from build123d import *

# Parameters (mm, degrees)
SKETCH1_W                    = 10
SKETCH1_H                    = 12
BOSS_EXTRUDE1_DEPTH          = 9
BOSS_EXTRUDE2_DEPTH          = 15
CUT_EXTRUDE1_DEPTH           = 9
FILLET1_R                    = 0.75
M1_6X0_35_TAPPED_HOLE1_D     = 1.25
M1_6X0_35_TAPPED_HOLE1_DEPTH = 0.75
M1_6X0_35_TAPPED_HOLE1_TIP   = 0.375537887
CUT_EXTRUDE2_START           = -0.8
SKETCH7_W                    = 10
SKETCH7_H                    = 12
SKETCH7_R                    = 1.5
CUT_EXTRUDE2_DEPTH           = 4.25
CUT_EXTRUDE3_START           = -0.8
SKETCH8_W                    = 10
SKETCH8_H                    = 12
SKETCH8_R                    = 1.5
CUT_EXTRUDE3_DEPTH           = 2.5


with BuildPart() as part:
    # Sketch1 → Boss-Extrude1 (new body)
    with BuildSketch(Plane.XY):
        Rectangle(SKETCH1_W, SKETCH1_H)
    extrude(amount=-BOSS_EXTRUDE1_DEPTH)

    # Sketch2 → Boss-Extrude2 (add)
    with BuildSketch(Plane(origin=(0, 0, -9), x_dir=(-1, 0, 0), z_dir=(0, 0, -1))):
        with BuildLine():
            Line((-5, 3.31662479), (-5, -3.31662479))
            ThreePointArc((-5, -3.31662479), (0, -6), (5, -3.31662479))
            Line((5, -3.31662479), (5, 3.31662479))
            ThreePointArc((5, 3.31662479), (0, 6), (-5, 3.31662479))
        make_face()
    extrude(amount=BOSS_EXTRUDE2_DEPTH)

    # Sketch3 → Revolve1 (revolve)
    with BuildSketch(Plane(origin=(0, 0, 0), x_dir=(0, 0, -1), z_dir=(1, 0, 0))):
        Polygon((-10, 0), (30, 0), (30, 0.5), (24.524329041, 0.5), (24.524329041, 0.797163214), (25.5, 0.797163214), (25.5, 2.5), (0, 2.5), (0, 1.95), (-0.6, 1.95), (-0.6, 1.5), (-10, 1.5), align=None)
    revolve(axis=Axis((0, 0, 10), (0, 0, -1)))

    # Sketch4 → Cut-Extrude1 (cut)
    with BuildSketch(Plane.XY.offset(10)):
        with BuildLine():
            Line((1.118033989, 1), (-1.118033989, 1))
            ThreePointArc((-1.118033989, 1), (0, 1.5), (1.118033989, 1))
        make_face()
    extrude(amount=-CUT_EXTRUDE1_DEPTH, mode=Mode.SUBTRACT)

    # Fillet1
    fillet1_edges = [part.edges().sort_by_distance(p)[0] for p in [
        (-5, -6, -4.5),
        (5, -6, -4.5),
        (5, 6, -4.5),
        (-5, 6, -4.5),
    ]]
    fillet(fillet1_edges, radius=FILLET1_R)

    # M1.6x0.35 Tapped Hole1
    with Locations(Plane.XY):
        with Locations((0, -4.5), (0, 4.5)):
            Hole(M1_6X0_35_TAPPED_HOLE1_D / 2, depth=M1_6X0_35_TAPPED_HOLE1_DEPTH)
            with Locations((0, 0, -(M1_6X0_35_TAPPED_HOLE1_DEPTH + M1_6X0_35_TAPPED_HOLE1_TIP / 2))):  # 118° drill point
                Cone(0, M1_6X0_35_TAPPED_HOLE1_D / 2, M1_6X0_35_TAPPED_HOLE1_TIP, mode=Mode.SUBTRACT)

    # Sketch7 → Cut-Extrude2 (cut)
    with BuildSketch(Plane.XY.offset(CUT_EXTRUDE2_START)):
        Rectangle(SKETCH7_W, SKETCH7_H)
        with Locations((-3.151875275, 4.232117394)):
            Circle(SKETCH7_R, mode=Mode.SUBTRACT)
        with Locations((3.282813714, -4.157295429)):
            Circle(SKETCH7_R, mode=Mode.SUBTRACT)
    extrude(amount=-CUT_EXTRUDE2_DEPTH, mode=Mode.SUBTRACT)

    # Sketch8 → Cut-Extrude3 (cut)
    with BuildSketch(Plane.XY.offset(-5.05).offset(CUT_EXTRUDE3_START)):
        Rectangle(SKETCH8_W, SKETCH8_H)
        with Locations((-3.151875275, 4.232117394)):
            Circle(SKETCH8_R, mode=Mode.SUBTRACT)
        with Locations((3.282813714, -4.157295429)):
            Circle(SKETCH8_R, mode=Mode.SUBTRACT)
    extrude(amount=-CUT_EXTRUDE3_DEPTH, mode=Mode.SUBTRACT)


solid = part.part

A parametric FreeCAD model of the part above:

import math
import FreeCAD as App
import Part
import Sketcher
from FreeCAD import Vector
Q = App.Units.Quantity


def edges_at(feature, points):
    """Names of the edges that pass closest to the given points."""
    edges = feature.Shape.Edges
    near = lambda p: min(range(len(edges)), key=lambda i: edges[i].distToShape(Part.Vertex(*p))[0])
    return sorted({f"Edge{near(p) + 1}" for p in points})

doc = App.newDocument("Part")
body = doc.addObject("PartDesign::Body", "Body")

sketch1 = body.newObject("Sketcher::SketchObject", "Sketch")
sketch1.AttachmentSupport = (doc.getObject("XY_Plane"), [""])
sketch1.MapMode = "FlatFace"
sketch1.addGeometry(Part.LineSegment(Vector(-5, 6, 0), Vector(-5, -6, 0)), False)
sketch1.addGeometry(Part.LineSegment(Vector(-5, -6, 0), Vector(5, -6, 0)), False)
sketch1.addGeometry(Part.LineSegment(Vector(5, -6, 0), Vector(5, 6, 0)), False)
sketch1.addGeometry(Part.LineSegment(Vector(5, 6, 0), Vector(-5, 6, 0)), False)
sketch1.addConstraint(Sketcher.Constraint("Coincident", 0, 2, 1, 1))
sketch1.addConstraint(Sketcher.Constraint("Coincident", 1, 2, 2, 1))
sketch1.addConstraint(Sketcher.Constraint("Coincident", 2, 2, 3, 1))
sketch1.addConstraint(Sketcher.Constraint("Coincident", 3, 2, 0, 1))
sketch1.addConstraint(Sketcher.Constraint("Vertical", 0))
sketch1.addConstraint(Sketcher.Constraint("Horizontal", 1))
sketch1.addConstraint(Sketcher.Constraint("Vertical", 2))
sketch1.addConstraint(Sketcher.Constraint("Horizontal", 3))
sketch1.addConstraint(Sketcher.Constraint("Symmetric", 0, 2, 2, 2, -1, 1))
sketch1.addConstraint(Sketcher.Constraint("DistanceX", 1, 1, 1, 2, Q("10 mm")))
sketch1.addConstraint(Sketcher.Constraint("DistanceY", 0, 2, 0, 1, Q("12 mm")))
pad1 = body.newObject("PartDesign::Pad", "Pad")
pad1.Profile = sketch1
pad1.Length = 9
pad1.Reversed = True

sketch2 = body.newObject("Sketcher::SketchObject", "Sketch001")
sketch2.AttachmentSupport = (doc.getObject("XY_Plane"), [""])
sketch2.MapMode = "FlatFace"
sketch2.AttachmentOffset = App.Placement(Vector(0, 0, -9), App.Rotation())
sketch2.addGeometry(Part.LineSegment(Vector(5, 3.316625, 0), Vector(5, -3.316625, 0)), False)
sketch2.addGeometry(Part.ArcOfCircle(Part.Circle(Vector(0, 0, 0), Vector(0, 0, 1), 6), math.radians(-146.44269), math.radians(-33.55731)), False)
sketch2.addGeometry(Part.LineSegment(Vector(-5, -3.316625, 0), Vector(-5, 3.316625, 0)), False)
sketch2.addGeometry(Part.ArcOfCircle(Part.Circle(Vector(0, 0, 0), Vector(0, 0, 1), 6), math.radians(33.55731), math.radians(146.44269)), False)
sketch2.addConstraint(Sketcher.Constraint("Coincident", 0, 2, 1, 2))
sketch2.addConstraint(Sketcher.Constraint("Coincident", 1, 1, 2, 1))
sketch2.addConstraint(Sketcher.Constraint("Coincident", 2, 2, 3, 2))
sketch2.addConstraint(Sketcher.Constraint("Coincident", 3, 1, 0, 1))
sketch2.addConstraint(Sketcher.Constraint("Vertical", 0))
sketch2.addConstraint(Sketcher.Constraint("Vertical", 2))
sketch2.addConstraint(Sketcher.Constraint("Coincident", 1, 3, -1, 1))
sketch2.addConstraint(Sketcher.Constraint("Coincident", 3, 3, -1, 1))
sketch2.addConstraint(Sketcher.Constraint("Equal", 1, 3))
sketch2.addConstraint(Sketcher.Constraint("Horizontal", 0, 2, 1, 1))
sketch2.addConstraint(Sketcher.Constraint("Radius", 1, Q("6 mm")))
sketch2.addConstraint(Sketcher.Constraint("DistanceX", -1, 1, 0, 2, Q("5 mm")))
pad2 = body.newObject("PartDesign::Pad", "Pad001")
pad2.Profile = sketch2
pad2.Length = 15
pad2.Reversed = True

sketch3 = body.newObject("Sketcher::SketchObject", "Sketch002")
sketch3.AttachmentSupport = (doc.getObject("YZ_Plane"), [""])
sketch3.MapMode = "FlatFace"
sketch3.addGeometry(Part.LineSegment(Vector(0, 10, 0), Vector(0, -30, 0)), False)
sketch3.addGeometry(Part.LineSegment(Vector(0, -30, 0), Vector(0.5, -30, 0)), False)
sketch3.addGeometry(Part.LineSegment(Vector(0.5, -30, 0), Vector(0.5, -24.524329, 0)), False)
sketch3.addGeometry(Part.LineSegment(Vector(0.5, -24.524329, 0), Vector(0.797163, -24.524329, 0)), False)
sketch3.addGeometry(Part.LineSegment(Vector(0.797163, -24.524329, 0), Vector(0.797163, -25.5, 0)), False)
sketch3.addGeometry(Part.LineSegment(Vector(0.797163, -25.5, 0), Vector(2.5, -25.5, 0)), False)
sketch3.addGeometry(Part.LineSegment(Vector(2.5, -25.5, 0), Vector(2.5, 0, 0)), False)
sketch3.addGeometry(Part.LineSegment(Vector(2.5, 0, 0), Vector(1.95, 0, 0)), False)
sketch3.addGeometry(Part.LineSegment(Vector(1.95, 0, 0), Vector(1.95, 0.6, 0)), False)
sketch3.addGeometry(Part.LineSegment(Vector(1.95, 0.6, 0), Vector(1.5, 0.6, 0)), False)
sketch3.addGeometry(Part.LineSegment(Vector(1.5, 0.6, 0), Vector(1.5, 10, 0)), False)
sketch3.addGeometry(Part.LineSegment(Vector(1.5, 10, 0), Vector(0, 10, 0)), False)
sketch3.addConstraint(Sketcher.Constraint("Coincident", 0, 2, 1, 1))
sketch3.addConstraint(Sketcher.Constraint("Coincident", 1, 2, 2, 1))
sketch3.addConstraint(Sketcher.Constraint("Coincident", 2, 2, 3, 1))
sketch3.addConstraint(Sketcher.Constraint("Coincident", 3, 2, 4, 1))
sketch3.addConstraint(Sketcher.Constraint("Coincident", 4, 2, 5, 1))
sketch3.addConstraint(Sketcher.Constraint("Coincident", 5, 2, 6, 1))
sketch3.addConstraint(Sketcher.Constraint("Coincident", 6, 2, 7, 1))
sketch3.addConstraint(Sketcher.Constraint("Coincident", 7, 2, 8, 1))
sketch3.addConstraint(Sketcher.Constraint("Coincident", 8, 2, 9, 1))
sketch3.addConstraint(Sketcher.Constraint("Coincident", 9, 2, 10, 1))
sketch3.addConstraint(Sketcher.Constraint("Coincident", 10, 2, 11, 1))
sketch3.addConstraint(Sketcher.Constraint("Coincident", 11, 2, 0, 1))
sketch3.addConstraint(Sketcher.Constraint("Vertical", 0))
sketch3.addConstraint(Sketcher.Constraint("Horizontal", 1))
sketch3.addConstraint(Sketcher.Constraint("Vertical", 2))
sketch3.addConstraint(Sketcher.Constraint("Horizontal", 3))
sketch3.addConstraint(Sketcher.Constraint("Vertical", 4))
sketch3.addConstraint(Sketcher.Constraint("Horizontal", 5))
sketch3.addConstraint(Sketcher.Constraint("Vertical", 6))
sketch3.addConstraint(Sketcher.Constraint("Horizontal", 7))
sketch3.addConstraint(Sketcher.Constraint("Vertical", 8))
sketch3.addConstraint(Sketcher.Constraint("Horizontal", 9))
sketch3.addConstraint(Sketcher.Constraint("Vertical", 10))
sketch3.addConstraint(Sketcher.Constraint("Horizontal", 11))
sketch3.addConstraint(Sketcher.Constraint("PointOnObject", 0, 2, -2))
sketch3.addConstraint(Sketcher.Constraint("PointOnObject", 6, 2, -1))
sketch3.addConstraint(Sketcher.Constraint("DistanceY", 0, 2, 0, 1, Q("40 mm")))
sketch3.addConstraint(Sketcher.Constraint("DistanceX", 1, 1, 1, 2, Q("0.5 mm")))
sketch3.addConstraint(Sketcher.Constraint("DistanceX", 11, 2, 11, 1, Q("1.5 mm")))
sketch3.addConstraint(Sketcher.Constraint("DistanceY", 6, 1, 6, 2, Q("25.5 mm")))
sketch3.addConstraint(Sketcher.Constraint("DistanceY", 8, 1, 8, 2, Q("0.6 mm")))
sketch3.addConstraint(Sketcher.Constraint("DistanceY", 10, 1, 10, 2, Q("9.4 mm")))
sketch3.addConstraint(Sketcher.Constraint("DistanceX", 2, 2, 5, 2, Q("2 mm")))
sketch3.addConstraint(Sketcher.Constraint("DistanceX", 7, 2, 7, 1, Q("0.55 mm")))
sketch3.addConstraint(Sketcher.Constraint("DistanceY", 2, 1, 2, 2, Q("5.475671 mm")))
sketch3.addConstraint(Sketcher.Constraint("DistanceX", 3, 1, 3, 2, Q("0.297163 mm")))
revolution = body.newObject("PartDesign::Revolution", "Revolution")
revolution.Profile = sketch3
revolution.ReferenceAxis = (sketch3, ["V_Axis"])
revolution.Angle = 360

sketch4 = body.newObject("Sketcher::SketchObject", "Sketch003")
sketch4.AttachmentSupport = (doc.getObject("XY_Plane"), [""])
sketch4.MapMode = "FlatFace"
sketch4.AttachmentOffset = App.Placement(Vector(0, 0, 10), App.Rotation())
sketch4.addGeometry(Part.LineSegment(Vector(-1.118034, 1, 0), Vector(1.118034, 1, 0)), False)
sketch4.addGeometry(Part.ArcOfCircle(Part.Circle(Vector(0, 0, 0), Vector(0, 0, 1), 1.5), math.radians(41.810315), math.radians(138.189685)), False)
sketch4.addConstraint(Sketcher.Constraint("Coincident", 0, 1, 1, 2))
sketch4.addConstraint(Sketcher.Constraint("Coincident", 1, 1, 0, 2))
sketch4.addConstraint(Sketcher.Constraint("Horizontal", 0))
sketch4.addConstraint(Sketcher.Constraint("Coincident", 1, 3, -1, 1))
sketch4.addConstraint(Sketcher.Constraint("Radius", 1, Q("1.5 mm")))
sketch4.addConstraint(Sketcher.Constraint("DistanceY", -1, 1, 0, 1, Q("1 mm")))
pocket1 = body.newObject("PartDesign::Pocket", "Pocket")
pocket1.Profile = sketch4
pocket1.Length = 9
doc.recompute()

fillet = body.newObject("PartDesign::Fillet", "Fillet")
fillet.Base = (pocket1, edges_at(pocket1, [
    (-5, -6, -4.5),
    (5, -6, -4.5),
    (5, 6, -4.5),
    (-5, 6, -4.5),
]))
fillet.Radius = 0.75

sketch5 = body.newObject("Sketcher::SketchObject", "Sketch004")
sketch5.AttachmentSupport = (doc.getObject("XY_Plane"), [""])
sketch5.MapMode = "FlatFace"
sketch5.addGeometry(Part.Circle(Vector(0, -4.5, 0), Vector(0, 0, 1), 0.625), False)
sketch5.addGeometry(Part.Circle(Vector(0, 4.5, 0), Vector(0, 0, 1), 0.625), False)
sketch5.addConstraint(Sketcher.Constraint("Equal", 0, 1))
sketch5.addConstraint(Sketcher.Constraint("Symmetric", 0, 3, 1, 3, -1, 1))
sketch5.addConstraint(Sketcher.Constraint("PointOnObject", 0, 3, -2))
sketch5.addConstraint(Sketcher.Constraint("Diameter", 0, Q("1.25 mm")))
sketch5.addConstraint(Sketcher.Constraint("DistanceY", 0, 3, 1, 3, Q("9 mm")))
doc.recompute()
hole = body.newObject("PartDesign::Hole", "Hole")
hole.Profile = sketch5
hole.ThreadType = "None"
hole.Diameter = 1.25
hole.DepthType = "Dimension"
hole.Depth = 0.75
hole.DrillPoint = "Angled"
hole.DrillPointAngle = 118

sketch6 = body.newObject("Sketcher::SketchObject", "Sketch005")
sketch6.AttachmentSupport = (doc.getObject("XY_Plane"), [""])
sketch6.MapMode = "FlatFace"
sketch6.AttachmentOffset = App.Placement(Vector(0, 0, -0.8), App.Rotation())
sketch6.addGeometry(Part.LineSegment(Vector(-5, 6, 0), Vector(-5, -6, 0)), False)
sketch6.addGeometry(Part.LineSegment(Vector(-5, -6, 0), Vector(5, -6, 0)), False)
sketch6.addGeometry(Part.LineSegment(Vector(5, -6, 0), Vector(5, 6, 0)), False)
sketch6.addGeometry(Part.LineSegment(Vector(5, 6, 0), Vector(-5, 6, 0)), False)
sketch6.addGeometry(Part.Circle(Vector(3.282814, -4.157295, 0), Vector(0, 0, 1), 1.5), False)
sketch6.addGeometry(Part.Circle(Vector(-3.151875, 4.232117, 0), Vector(0, 0, 1), 1.5), False)
sketch6.addConstraint(Sketcher.Constraint("Coincident", 0, 2, 1, 1))
sketch6.addConstraint(Sketcher.Constraint("Coincident", 1, 2, 2, 1))
sketch6.addConstraint(Sketcher.Constraint("Coincident", 2, 2, 3, 1))
sketch6.addConstraint(Sketcher.Constraint("Coincident", 3, 2, 0, 1))
sketch6.addConstraint(Sketcher.Constraint("Vertical", 0))
sketch6.addConstraint(Sketcher.Constraint("Horizontal", 1))
sketch6.addConstraint(Sketcher.Constraint("Vertical", 2))
sketch6.addConstraint(Sketcher.Constraint("Horizontal", 3))
sketch6.addConstraint(Sketcher.Constraint("Equal", 4, 5))
sketch6.addConstraint(Sketcher.Constraint("Symmetric", 0, 2, 2, 2, -1, 1))
sketch6.addConstraint(Sketcher.Constraint("Diameter", 4, Q("3 mm")))
sketch6.addConstraint(Sketcher.Constraint("DistanceX", 1, 1, 1, 2, Q("10 mm")))
sketch6.addConstraint(Sketcher.Constraint("DistanceY", 0, 2, 0, 1, Q("12 mm")))
sketch6.addConstraint(Sketcher.Constraint("DistanceX", 5, 3, 4, 3, Q("6.434689 mm")))
sketch6.addConstraint(Sketcher.Constraint("DistanceX", -1, 1, 4, 3, Q("3.282814 mm")))
sketch6.addConstraint(Sketcher.Constraint("DistanceY", 4, 3, -1, 1, Q("4.157295 mm")))
sketch6.addConstraint(Sketcher.Constraint("DistanceY", -1, 1, 5, 3, Q("4.232117 mm")))
pocket2 = body.newObject("PartDesign::Pocket", "Pocket001")
pocket2.Profile = sketch6
pocket2.Length = 4.25

sketch7 = body.newObject("Sketcher::SketchObject", "Sketch006")
sketch7.AttachmentSupport = (doc.getObject("XY_Plane"), [""])
sketch7.MapMode = "FlatFace"
sketch7.AttachmentOffset = App.Placement(Vector(0, 0, -5.85), App.Rotation())
sketch7.addGeometry(Part.LineSegment(Vector(-5, 6, 0), Vector(-5, -6, 0)), False)
sketch7.addGeometry(Part.LineSegment(Vector(-5, -6, 0), Vector(5, -6, 0)), False)
sketch7.addGeometry(Part.LineSegment(Vector(5, -6, 0), Vector(5, 6, 0)), False)
sketch7.addGeometry(Part.LineSegment(Vector(5, 6, 0), Vector(-5, 6, 0)), False)
sketch7.addGeometry(Part.Circle(Vector(3.282814, -4.157295, 0), Vector(0, 0, 1), 1.5), False)
sketch7.addGeometry(Part.Circle(Vector(-3.151875, 4.232117, 0), Vector(0, 0, 1), 1.5), False)
sketch7.addConstraint(Sketcher.Constraint("Coincident", 0, 2, 1, 1))
sketch7.addConstraint(Sketcher.Constraint("Coincident", 1, 2, 2, 1))
sketch7.addConstraint(Sketcher.Constraint("Coincident", 2, 2, 3, 1))
sketch7.addConstraint(Sketcher.Constraint("Coincident", 3, 2, 0, 1))
sketch7.addConstraint(Sketcher.Constraint("Vertical", 0))
sketch7.addConstraint(Sketcher.Constraint("Horizontal", 1))
sketch7.addConstraint(Sketcher.Constraint("Vertical", 2))
sketch7.addConstraint(Sketcher.Constraint("Horizontal", 3))
sketch7.addConstraint(Sketcher.Constraint("Equal", 4, 5))
sketch7.addConstraint(Sketcher.Constraint("Symmetric", 0, 2, 2, 2, -1, 1))
sketch7.addConstraint(Sketcher.Constraint("Diameter", 4, Q("3 mm")))
sketch7.addConstraint(Sketcher.Constraint("DistanceX", 1, 1, 1, 2, Q("10 mm")))
sketch7.addConstraint(Sketcher.Constraint("DistanceY", 0, 2, 0, 1, Q("12 mm")))
sketch7.addConstraint(Sketcher.Constraint("DistanceX", 5, 3, 4, 3, Q("6.434689 mm")))
sketch7.addConstraint(Sketcher.Constraint("DistanceX", -1, 1, 4, 3, Q("3.282814 mm")))
sketch7.addConstraint(Sketcher.Constraint("DistanceY", 4, 3, -1, 1, Q("4.157295 mm")))
sketch7.addConstraint(Sketcher.Constraint("DistanceY", -1, 1, 5, 3, Q("4.232117 mm")))
pocket3 = body.newObject("PartDesign::Pocket", "Pocket002")
pocket3.Profile = sketch7
pocket3.Length = 2.5

doc.recompute()
